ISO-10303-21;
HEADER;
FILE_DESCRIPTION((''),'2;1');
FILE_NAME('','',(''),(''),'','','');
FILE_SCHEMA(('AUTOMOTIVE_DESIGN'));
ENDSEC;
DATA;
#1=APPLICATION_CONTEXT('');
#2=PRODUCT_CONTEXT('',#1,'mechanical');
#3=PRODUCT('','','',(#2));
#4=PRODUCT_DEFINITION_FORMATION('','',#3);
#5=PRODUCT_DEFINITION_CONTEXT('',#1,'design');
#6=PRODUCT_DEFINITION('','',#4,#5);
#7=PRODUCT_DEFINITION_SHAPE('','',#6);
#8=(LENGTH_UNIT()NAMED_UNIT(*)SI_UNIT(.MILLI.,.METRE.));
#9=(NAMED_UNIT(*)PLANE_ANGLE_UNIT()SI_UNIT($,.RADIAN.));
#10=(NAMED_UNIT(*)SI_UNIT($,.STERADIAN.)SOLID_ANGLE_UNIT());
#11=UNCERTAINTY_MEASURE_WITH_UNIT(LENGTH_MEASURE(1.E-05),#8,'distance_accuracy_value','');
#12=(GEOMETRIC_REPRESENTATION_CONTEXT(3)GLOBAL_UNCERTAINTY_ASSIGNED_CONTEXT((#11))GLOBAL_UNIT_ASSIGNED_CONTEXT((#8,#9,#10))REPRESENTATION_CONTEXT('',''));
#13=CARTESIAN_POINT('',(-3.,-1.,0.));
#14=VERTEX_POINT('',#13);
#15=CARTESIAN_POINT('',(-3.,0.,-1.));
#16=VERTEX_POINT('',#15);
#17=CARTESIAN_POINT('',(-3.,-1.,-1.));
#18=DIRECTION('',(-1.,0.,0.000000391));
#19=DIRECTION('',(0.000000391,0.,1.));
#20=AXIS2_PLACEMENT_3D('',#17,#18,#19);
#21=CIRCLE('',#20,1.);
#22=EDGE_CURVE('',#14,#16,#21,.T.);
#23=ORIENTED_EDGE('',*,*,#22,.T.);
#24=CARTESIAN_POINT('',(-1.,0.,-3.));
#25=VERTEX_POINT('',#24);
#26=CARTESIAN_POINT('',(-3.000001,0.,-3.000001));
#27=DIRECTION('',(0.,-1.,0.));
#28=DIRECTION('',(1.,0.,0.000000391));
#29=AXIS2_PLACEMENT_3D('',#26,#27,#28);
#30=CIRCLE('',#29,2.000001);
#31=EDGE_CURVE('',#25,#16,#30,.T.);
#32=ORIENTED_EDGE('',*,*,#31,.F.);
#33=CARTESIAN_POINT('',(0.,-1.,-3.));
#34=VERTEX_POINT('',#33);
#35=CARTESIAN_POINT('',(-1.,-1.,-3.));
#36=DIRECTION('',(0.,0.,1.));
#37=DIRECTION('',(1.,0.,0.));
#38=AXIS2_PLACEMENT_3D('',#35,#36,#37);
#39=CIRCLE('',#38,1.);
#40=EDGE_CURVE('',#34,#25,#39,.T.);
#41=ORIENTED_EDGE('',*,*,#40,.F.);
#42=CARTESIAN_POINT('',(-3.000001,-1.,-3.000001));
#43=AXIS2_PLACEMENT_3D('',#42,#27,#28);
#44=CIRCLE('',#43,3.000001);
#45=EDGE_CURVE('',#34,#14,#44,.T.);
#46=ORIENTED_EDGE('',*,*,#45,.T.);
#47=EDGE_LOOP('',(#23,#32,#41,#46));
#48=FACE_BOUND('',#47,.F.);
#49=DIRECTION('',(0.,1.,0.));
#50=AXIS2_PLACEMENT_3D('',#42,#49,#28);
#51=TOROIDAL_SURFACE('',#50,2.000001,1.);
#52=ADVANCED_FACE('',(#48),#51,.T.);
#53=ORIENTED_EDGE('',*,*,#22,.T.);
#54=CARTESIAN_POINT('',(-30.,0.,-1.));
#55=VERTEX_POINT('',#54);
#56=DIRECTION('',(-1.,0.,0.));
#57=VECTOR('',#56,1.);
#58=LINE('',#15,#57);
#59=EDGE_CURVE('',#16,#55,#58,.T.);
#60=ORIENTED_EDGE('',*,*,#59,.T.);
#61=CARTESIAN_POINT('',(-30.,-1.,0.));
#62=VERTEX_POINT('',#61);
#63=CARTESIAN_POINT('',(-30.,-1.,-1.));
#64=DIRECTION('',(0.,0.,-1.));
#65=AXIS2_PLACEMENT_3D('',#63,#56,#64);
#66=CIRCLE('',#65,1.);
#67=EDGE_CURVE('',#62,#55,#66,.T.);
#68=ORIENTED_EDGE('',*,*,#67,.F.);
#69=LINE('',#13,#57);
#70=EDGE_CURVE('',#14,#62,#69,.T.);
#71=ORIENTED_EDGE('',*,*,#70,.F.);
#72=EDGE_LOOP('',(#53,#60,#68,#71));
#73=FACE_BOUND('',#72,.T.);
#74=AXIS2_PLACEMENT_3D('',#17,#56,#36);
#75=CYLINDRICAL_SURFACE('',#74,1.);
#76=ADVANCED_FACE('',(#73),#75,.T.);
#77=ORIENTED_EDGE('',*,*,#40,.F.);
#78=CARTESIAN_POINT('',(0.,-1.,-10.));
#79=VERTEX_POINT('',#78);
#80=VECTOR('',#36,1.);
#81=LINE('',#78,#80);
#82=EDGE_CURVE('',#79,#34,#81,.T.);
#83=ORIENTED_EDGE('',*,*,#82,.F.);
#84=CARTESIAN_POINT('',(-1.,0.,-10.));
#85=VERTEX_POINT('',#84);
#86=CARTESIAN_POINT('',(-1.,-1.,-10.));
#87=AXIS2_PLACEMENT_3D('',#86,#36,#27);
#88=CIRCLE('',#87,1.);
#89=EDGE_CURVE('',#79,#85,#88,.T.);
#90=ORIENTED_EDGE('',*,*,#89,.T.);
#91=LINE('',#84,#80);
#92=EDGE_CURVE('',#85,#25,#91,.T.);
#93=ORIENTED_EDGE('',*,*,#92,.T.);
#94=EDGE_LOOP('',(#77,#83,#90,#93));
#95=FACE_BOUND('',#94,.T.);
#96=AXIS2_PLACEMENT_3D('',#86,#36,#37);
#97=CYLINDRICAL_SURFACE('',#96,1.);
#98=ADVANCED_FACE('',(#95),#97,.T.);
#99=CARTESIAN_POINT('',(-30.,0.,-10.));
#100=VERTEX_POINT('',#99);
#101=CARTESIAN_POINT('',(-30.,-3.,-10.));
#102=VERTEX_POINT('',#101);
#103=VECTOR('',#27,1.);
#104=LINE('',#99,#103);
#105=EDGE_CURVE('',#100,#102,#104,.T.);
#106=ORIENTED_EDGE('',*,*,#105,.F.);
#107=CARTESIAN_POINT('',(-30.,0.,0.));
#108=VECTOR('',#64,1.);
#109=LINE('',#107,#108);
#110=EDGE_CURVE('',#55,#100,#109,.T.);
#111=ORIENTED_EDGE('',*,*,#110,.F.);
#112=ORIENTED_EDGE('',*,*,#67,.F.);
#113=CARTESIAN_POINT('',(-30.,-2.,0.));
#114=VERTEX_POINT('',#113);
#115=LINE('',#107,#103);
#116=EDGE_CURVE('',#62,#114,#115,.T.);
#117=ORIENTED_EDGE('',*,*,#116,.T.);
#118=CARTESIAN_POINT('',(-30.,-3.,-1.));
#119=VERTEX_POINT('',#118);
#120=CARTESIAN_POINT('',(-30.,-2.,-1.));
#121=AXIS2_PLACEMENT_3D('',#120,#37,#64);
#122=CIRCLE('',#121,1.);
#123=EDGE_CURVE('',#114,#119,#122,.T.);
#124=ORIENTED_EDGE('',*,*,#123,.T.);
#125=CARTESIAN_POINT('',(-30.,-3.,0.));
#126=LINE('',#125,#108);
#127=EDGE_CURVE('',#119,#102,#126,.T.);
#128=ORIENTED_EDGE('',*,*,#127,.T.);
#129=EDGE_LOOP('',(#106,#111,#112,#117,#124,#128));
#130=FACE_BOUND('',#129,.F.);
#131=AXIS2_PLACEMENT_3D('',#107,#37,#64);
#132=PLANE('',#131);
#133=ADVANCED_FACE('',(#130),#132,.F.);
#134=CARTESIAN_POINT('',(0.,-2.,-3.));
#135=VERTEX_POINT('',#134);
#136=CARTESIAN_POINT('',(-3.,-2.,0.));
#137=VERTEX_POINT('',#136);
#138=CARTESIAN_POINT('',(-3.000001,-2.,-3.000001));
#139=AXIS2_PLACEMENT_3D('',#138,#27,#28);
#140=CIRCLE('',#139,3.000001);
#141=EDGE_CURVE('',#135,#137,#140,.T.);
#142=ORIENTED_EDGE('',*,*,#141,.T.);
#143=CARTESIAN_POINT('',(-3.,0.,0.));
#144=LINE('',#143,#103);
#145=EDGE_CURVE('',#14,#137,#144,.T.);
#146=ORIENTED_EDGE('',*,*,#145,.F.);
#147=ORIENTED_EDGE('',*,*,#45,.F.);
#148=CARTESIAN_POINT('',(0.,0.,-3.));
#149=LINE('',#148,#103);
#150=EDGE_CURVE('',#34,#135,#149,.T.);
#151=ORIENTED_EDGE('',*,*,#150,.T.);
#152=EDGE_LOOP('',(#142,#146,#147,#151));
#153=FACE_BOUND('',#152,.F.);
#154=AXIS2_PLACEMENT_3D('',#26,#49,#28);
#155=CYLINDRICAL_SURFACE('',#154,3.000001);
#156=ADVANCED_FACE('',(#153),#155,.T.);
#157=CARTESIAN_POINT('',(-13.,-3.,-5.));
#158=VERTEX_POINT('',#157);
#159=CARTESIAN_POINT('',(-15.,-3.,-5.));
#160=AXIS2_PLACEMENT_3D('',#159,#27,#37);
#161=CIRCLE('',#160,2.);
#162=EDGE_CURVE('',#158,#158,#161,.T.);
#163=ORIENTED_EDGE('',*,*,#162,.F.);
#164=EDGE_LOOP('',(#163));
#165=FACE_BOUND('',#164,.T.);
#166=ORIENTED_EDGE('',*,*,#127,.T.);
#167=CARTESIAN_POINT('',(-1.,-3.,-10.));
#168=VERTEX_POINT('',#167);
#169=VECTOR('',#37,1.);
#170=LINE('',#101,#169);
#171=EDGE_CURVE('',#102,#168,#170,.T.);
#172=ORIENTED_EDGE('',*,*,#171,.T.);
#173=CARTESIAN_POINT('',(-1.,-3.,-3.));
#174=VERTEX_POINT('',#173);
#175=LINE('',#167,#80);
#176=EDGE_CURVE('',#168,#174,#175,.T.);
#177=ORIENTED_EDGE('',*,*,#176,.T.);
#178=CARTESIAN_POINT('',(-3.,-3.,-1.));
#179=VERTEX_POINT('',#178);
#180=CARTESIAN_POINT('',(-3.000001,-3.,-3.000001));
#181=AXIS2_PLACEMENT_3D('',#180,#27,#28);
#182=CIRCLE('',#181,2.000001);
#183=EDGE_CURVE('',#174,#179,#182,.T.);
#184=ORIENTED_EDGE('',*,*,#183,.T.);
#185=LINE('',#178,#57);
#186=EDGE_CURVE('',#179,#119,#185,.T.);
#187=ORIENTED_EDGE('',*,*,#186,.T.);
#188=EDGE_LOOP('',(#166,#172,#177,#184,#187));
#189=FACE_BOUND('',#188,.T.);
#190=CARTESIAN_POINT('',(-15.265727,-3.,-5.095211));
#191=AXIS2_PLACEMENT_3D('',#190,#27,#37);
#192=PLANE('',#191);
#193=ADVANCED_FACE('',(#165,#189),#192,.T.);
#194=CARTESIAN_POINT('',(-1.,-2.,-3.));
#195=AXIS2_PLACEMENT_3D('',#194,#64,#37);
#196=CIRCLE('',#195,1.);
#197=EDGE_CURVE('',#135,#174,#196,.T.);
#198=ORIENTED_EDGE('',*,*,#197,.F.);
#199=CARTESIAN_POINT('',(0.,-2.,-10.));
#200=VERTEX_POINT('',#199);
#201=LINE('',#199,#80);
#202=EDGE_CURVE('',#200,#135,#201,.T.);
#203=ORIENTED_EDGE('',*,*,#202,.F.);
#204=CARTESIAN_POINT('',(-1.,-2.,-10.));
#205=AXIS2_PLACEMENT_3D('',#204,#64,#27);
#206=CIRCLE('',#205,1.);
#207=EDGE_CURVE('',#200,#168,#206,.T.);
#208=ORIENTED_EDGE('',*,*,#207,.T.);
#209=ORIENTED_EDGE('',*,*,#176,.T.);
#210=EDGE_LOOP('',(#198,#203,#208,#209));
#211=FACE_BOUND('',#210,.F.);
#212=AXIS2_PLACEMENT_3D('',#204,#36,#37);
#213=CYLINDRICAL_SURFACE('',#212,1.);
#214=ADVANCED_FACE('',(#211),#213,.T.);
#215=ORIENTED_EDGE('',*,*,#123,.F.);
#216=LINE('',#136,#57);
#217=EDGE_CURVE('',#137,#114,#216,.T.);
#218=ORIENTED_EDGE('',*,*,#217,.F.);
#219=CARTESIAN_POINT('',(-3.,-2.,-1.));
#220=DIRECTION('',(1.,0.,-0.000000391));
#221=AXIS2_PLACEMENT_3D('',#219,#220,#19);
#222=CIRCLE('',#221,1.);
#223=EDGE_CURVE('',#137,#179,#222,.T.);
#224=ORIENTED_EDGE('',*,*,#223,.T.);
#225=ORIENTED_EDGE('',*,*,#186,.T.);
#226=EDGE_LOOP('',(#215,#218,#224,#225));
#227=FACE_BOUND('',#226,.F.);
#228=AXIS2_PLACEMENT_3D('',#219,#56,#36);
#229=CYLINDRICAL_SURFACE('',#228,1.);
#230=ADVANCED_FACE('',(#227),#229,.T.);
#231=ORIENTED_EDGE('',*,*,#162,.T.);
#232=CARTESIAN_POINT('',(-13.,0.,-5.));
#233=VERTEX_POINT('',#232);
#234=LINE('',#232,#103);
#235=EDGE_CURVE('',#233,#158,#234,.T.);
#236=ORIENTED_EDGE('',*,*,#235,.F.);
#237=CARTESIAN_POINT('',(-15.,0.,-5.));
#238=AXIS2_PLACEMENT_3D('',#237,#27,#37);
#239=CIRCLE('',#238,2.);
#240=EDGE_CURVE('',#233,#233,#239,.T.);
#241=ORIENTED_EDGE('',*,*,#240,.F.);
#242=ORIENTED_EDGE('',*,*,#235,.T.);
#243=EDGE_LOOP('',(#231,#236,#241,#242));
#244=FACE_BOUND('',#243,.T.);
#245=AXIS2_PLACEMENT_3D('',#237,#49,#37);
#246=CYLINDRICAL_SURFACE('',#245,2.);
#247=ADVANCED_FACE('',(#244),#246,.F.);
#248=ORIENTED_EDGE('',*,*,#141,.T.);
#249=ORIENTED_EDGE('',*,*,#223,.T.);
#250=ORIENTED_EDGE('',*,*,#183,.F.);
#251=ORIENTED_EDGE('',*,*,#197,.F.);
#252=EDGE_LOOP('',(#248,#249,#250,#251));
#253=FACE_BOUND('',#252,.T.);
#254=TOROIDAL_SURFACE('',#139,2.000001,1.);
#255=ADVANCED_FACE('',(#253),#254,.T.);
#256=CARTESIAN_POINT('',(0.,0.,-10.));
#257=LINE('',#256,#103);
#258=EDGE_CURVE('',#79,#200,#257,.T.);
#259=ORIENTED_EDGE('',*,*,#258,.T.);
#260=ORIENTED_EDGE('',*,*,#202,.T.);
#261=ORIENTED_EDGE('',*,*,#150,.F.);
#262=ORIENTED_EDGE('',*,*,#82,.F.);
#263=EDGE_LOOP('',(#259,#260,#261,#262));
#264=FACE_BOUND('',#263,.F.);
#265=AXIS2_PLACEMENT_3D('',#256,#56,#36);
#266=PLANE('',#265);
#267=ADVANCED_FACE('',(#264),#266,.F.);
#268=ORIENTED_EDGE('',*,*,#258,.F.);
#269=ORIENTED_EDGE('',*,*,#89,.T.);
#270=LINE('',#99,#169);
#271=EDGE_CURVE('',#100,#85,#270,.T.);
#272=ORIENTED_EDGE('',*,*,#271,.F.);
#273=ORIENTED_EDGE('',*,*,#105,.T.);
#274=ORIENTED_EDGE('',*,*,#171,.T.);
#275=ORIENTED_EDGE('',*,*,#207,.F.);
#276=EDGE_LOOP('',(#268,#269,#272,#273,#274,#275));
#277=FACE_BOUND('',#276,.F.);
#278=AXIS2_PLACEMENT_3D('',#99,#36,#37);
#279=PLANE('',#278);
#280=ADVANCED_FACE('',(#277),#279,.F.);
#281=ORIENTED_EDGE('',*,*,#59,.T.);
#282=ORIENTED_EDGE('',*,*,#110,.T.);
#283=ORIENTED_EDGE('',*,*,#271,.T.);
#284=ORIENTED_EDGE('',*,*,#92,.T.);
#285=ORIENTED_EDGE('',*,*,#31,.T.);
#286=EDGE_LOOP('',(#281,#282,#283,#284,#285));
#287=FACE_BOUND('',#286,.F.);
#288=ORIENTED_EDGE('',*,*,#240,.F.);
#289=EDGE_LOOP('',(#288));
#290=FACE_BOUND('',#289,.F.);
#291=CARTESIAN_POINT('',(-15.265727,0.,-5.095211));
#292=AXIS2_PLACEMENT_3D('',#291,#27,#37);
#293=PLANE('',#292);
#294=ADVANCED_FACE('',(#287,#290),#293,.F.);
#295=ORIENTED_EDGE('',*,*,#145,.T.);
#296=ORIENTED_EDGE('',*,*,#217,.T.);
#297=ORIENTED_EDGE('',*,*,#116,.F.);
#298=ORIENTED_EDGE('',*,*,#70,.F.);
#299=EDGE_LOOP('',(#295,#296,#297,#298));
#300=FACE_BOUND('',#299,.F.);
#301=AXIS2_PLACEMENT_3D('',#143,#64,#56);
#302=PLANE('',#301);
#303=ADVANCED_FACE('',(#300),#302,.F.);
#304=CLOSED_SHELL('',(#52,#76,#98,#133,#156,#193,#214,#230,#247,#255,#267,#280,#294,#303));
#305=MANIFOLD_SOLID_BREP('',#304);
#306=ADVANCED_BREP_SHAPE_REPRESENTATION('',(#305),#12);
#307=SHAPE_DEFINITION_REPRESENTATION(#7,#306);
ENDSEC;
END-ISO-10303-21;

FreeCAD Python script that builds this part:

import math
import FreeCAD as App
import Part
import Sketcher
from FreeCAD import Vector
Q = App.Units.Quantity


def edges_at(feature, points):
    """Names of the edges that pass closest to the given points."""
    edges = feature.Shape.Edges
    near = lambda p: min(range(len(edges)), key=lambda i: edges[i].distToShape(Part.Vertex(*p))[0])
    return sorted({f"Edge{near(p) + 1}" for p in points})

doc = App.newDocument("Part")
body = doc.addObject("PartDesign::Body", "Body")

# Sketch on XZ plane
sketch1 = doc.addObject("Sketcher::SketchObject", "Sketch")
body.addObject(sketch1)
sketch1.AttachmentSupport = (doc.XZ_Plane, [""])
sketch1.MapMode = "FlatFace"
sketch1.addGeometry(Part.ArcOfCircle(Part.Circle(Vector(-3, -3, 0), Vector(0, 0, 1), 3), math.radians(0), math.radians(90)), False)
sketch1.addGeometry(Part.LineSegment(Vector(-3, 0, 0), Vector(-30, 0, 0)), False)
sketch1.addGeometry(Part.LineSegment(Vector(-30, 0, 0), Vector(-30, -10, 0)), False)
sketch1.addGeometry(Part.LineSegment(Vector(-30, -10, 0), Vector(0, -10, 0)), False)
sketch1.addGeometry(Part.LineSegment(Vector(0, -10, 0), Vector(0, -3, 0)), False)
sketch1.addGeometry(Part.Circle(Vector(-15, -5, 0), Vector(0, 0, 1), 2), False)
sketch1.addConstraint(Sketcher.Constraint("Tangent", 0, 2, 1, 1))
sketch1.addConstraint(Sketcher.Constraint("Coincident", 1, 2, 2, 1))
sketch1.addConstraint(Sketcher.Constraint("Coincident", 2, 2, 3, 1))
sketch1.addConstraint(Sketcher.Constraint("Coincident", 3, 2, 4, 1))
sketch1.addConstraint(Sketcher.Constraint("Tangent", 4, 2, 0, 1))
sketch1.addConstraint(Sketcher.Constraint("Horizontal", 1))
sketch1.addConstraint(Sketcher.Constraint("Vertical", 2))
sketch1.addConstraint(Sketcher.Constraint("Horizontal", 3))
sketch1.addConstraint(Sketcher.Constraint("Vertical", 4))
sketch1.addConstraint(Sketcher.Constraint("PointOnObject", 0, 2, -1))
sketch1.addConstraint(Sketcher.Constraint("PointOnObject", 3, 2, -2))
sketch1.addConstraint(Sketcher.Constraint("Diameter", 5, Q("4 mm")))
sketch1.addConstraint(Sketcher.Constraint("Radius", 0, Q("3.000001 mm")))
sketch1.addConstraint(Sketcher.Constraint("DistanceX", 1, 2, 1, 1, Q("27 mm")))
sketch1.addConstraint(Sketcher.Constraint("DistanceY", 2, 2, 2, 1, Q("10 mm")))
sketch1.addConstraint(Sketcher.Constraint("DistanceX", 5, 3, -1, 1, Q("15 mm")))
sketch1.addConstraint(Sketcher.Constraint("DistanceY", 5, 3, -1, 1, Q("5 mm")))
pad1 = doc.addObject("PartDesign::Pad", "Pad")
body.addObject(pad1)
pad1.Profile = sketch1
pad1.Length = 3
doc.recompute()

fillet = doc.addObject("PartDesign::Fillet", "Fillet")
body.addObject(fillet)
fillet.Base = (pad1, edges_at(pad1, [(-16.5, -3, 0), (-16.5, 0, 0)]))
fillet.Radius = 1

doc.recompute()
